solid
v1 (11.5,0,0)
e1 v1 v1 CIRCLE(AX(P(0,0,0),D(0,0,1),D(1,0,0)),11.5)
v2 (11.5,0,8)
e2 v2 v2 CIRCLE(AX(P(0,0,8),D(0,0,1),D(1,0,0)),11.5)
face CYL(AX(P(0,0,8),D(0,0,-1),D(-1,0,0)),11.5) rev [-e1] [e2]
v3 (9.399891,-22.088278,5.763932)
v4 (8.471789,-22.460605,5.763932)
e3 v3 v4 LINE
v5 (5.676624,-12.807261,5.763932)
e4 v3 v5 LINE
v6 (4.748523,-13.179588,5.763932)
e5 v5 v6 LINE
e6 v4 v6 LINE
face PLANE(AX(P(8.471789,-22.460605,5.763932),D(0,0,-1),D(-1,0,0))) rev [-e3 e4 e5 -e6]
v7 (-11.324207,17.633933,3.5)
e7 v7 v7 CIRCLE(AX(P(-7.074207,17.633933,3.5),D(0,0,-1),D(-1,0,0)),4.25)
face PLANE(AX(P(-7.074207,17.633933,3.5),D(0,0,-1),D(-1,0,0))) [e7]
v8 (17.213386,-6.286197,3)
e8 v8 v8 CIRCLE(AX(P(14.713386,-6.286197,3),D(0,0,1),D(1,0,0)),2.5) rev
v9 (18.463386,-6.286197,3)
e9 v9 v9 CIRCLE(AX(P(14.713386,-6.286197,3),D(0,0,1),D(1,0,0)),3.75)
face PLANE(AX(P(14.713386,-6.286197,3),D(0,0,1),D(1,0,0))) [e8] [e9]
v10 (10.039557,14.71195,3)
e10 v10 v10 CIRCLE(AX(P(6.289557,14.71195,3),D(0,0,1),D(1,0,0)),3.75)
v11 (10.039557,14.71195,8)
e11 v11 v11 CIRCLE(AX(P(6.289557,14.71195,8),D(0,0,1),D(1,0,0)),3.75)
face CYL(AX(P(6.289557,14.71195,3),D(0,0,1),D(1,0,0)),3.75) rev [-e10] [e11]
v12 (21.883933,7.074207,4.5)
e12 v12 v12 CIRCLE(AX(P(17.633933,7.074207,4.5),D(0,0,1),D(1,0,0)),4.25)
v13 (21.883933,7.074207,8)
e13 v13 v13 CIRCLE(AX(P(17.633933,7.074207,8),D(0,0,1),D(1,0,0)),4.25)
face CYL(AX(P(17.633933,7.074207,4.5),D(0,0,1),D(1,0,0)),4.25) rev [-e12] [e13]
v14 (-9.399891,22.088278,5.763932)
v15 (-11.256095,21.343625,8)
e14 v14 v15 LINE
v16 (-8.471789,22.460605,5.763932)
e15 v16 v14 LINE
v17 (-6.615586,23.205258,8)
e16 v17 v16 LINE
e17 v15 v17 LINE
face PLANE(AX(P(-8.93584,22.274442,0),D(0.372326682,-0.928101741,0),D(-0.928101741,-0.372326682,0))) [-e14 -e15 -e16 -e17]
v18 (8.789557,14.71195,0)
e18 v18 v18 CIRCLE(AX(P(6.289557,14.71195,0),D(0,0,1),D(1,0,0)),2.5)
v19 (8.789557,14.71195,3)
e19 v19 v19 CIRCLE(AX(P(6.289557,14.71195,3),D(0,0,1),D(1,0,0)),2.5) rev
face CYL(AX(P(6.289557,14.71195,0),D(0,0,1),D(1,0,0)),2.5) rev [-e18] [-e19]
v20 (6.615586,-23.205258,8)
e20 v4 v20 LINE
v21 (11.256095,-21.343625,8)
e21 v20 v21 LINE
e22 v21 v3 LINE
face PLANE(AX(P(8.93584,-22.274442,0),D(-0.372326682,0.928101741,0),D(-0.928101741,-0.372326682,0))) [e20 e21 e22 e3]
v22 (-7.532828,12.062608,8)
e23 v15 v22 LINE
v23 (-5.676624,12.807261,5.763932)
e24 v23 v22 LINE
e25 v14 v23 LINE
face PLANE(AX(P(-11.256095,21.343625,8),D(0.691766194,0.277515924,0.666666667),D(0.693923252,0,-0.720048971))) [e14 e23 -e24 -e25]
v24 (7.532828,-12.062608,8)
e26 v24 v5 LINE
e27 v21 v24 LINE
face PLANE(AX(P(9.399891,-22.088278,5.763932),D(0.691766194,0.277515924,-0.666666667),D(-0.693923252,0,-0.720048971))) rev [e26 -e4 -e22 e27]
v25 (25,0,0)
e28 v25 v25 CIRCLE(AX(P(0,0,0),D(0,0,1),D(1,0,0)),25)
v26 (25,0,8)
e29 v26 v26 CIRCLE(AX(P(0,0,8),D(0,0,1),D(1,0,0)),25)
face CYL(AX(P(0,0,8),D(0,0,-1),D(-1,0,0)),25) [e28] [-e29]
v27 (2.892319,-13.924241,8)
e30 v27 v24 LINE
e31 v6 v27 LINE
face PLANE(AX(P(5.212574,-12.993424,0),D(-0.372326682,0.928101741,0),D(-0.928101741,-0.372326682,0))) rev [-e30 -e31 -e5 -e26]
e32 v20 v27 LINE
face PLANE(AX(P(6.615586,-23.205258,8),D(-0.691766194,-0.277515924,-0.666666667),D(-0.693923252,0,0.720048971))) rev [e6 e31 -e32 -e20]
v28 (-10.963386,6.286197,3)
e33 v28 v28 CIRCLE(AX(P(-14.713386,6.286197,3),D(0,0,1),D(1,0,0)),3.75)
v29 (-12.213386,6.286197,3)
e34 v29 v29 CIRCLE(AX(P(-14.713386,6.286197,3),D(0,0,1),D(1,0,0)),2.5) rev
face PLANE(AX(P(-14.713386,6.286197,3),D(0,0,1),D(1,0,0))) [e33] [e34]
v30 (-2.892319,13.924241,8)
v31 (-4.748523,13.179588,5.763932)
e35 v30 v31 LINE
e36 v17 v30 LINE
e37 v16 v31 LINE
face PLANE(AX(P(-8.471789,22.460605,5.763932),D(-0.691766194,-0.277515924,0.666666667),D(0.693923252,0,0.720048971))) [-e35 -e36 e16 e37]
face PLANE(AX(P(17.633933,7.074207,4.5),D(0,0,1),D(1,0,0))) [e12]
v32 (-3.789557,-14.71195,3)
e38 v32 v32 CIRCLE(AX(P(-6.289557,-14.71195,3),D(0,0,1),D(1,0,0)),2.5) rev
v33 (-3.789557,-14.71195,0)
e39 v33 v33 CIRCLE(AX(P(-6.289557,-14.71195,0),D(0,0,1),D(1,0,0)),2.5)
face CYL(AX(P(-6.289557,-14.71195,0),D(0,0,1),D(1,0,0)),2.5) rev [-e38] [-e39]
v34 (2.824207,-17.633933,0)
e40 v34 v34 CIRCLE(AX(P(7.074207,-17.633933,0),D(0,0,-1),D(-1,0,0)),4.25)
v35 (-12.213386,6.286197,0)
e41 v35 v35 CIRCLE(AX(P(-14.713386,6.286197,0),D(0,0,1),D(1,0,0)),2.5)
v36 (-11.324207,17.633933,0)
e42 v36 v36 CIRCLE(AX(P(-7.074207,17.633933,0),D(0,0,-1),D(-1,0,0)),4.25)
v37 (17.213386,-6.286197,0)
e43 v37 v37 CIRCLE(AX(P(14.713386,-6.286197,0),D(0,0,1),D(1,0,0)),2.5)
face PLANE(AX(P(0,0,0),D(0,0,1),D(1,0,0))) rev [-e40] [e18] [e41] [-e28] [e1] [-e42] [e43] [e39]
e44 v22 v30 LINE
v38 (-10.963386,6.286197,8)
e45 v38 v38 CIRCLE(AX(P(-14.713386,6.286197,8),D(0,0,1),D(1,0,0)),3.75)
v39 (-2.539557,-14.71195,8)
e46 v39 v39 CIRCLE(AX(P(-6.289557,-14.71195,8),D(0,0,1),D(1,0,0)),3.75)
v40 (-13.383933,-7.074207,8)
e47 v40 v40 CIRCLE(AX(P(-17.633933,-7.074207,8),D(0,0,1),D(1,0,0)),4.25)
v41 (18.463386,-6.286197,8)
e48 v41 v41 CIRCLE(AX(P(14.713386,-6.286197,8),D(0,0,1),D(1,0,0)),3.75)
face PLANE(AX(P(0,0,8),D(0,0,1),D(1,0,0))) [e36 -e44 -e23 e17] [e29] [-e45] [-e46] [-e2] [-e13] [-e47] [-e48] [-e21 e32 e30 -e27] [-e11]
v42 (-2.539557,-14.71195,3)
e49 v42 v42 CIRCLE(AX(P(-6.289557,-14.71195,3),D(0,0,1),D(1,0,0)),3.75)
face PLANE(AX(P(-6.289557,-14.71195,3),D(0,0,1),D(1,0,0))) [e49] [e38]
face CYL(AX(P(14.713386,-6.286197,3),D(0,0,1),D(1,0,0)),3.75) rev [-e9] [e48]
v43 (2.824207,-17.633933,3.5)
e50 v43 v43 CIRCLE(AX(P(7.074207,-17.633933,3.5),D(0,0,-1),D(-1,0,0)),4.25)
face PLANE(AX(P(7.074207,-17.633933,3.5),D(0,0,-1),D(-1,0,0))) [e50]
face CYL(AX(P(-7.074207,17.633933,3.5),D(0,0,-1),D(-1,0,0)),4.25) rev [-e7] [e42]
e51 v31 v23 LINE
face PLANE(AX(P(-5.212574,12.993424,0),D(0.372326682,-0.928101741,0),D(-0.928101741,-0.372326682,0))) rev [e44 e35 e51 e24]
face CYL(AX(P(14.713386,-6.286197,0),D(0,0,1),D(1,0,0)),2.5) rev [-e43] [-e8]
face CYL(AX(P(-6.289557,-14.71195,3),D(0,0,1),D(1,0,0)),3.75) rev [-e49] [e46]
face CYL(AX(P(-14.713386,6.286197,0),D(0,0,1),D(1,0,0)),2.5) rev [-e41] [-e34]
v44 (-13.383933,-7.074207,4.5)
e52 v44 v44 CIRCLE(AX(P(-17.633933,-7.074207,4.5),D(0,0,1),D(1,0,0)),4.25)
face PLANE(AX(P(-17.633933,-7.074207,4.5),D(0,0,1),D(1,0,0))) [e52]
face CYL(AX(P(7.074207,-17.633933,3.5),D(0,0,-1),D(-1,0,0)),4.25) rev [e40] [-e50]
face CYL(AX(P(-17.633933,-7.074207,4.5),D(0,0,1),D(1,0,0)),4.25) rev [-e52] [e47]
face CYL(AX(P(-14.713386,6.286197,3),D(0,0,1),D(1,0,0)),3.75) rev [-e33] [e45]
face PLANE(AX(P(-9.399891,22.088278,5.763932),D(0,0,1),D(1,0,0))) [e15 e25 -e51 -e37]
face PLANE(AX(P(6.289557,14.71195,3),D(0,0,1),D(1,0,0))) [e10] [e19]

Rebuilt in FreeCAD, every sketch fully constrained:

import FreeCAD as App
import Part
import Sketcher

doc = App.newDocument("Part")
body = doc.addObject("PartDesign::Body", "Body")

# Sketch on XY plane
sketch1 = body.newObject("Sketcher::SketchObject", "Sketch")
sketch1.AttachmentSupport = (doc.getObject("XY_Plane"), [""])
sketch1.MapMode = "FlatFace"
sketch1.addGeometry(Part.Circle(App.Vector(0, 0, 0), App.Vector(0, 0, 1), 25), False)
sketch1.addGeometry(Part.Circle(App.Vector(0, 0, 0), App.Vector(0, 0, 1), 12), False)
sketch1.addConstraint(Sketcher.Constraint("Coincident", 0, 3, -1, 1))
sketch1.addConstraint(Sketcher.Constraint("Coincident", 1, 3, -1, 1))
sketch1.addConstraint(Sketcher.Constraint("Diameter", 0, 50.0))
sketch1.addConstraint(Sketcher.Constraint("Diameter", 1, 23.0))
pad1 = body.newObject("PartDesign::Pad", "Pad")
pad1.Profile = sketch1
pad1.Length = 8

# Sketch on XY plane
sketch2 = body.newObject("Sketcher::SketchObject", "Sketch001")
sketch2.AttachmentSupport = (doc.getObject("XY_Plane"), [""])
sketch2.MapMode = "FlatFace"
sketch2.AttachmentOffset = App.Placement(App.Vector(0, 0, 8), App.Rotation())
sketch2.addGeometry(Part.Circle(App.Vector(-14.7, 6.3, 0), App.Vector(0, 0, 1), 2.5), False)
sketch2.addGeometry(Part.Circle(App.Vector(6.3, 14.7, 0), App.Vector(0, 0, 1), 2.5), False)
sketch2.addGeometry(Part.Circle(App.Vector(14.7, -6.3, 0), App.Vector(0, 0, 1), 2.5), False)
sketch2.addGeometry(Part.Circle(App.Vector(-6.3, -14.7, 0), App.Vector(0, 0, 1), 2.5), False)
sketch2.addConstraint(Sketcher.Constraint("Equal", 0, 1))
sketch2.addConstraint(Sketcher.Constraint("Equal", 1, 2))
sketch2.addConstraint(Sketcher.Constraint("Equal", 2, 3))
sketch2.addConstraint(Sketcher.Constraint("Symmetric", 0, 3, 2, 3, -1, 1))
sketch2.addConstraint(Sketcher.Constraint("Symmetric", 1, 3, 3, 3, -1, 1))
sketch2.addConstraint(Sketcher.Constraint("Diameter", 0, 5.0))
sketch2.addConstraint(Sketcher.Constraint("DistanceY", 3, 3, 1, 3, 29.4239))
sketch2.addConstraint(Sketcher.Constraint("DistanceX", 1, 3, 2, 3, 8.423829))
sketch2.addConstraint(Sketcher.Constraint("DistanceX", 0, 3, 2, 3, 29.426772))
sketch2.addConstraint(Sketcher.Constraint("DistanceY", -1, 1, 0, 3, 6.286197))
pocket1 = body.newObject("PartDesign::Pocket", "Pocket")
pocket1.Profile = sketch2
pocket1.Type = "ThroughAll"

# Sketch on XY plane
sketch3 = body.newObject("Sketcher::SketchObject", "Sketch002")
sketch3.AttachmentSupport = (doc.getObject("XY_Plane"), [""])
sketch3.MapMode = "FlatFace"
sketch3.AttachmentOffset = App.Placement(App.Vector(0, 0, 8), App.Rotation())
sketch3.addGeometry(Part.Circle(App.Vector(-6.3, -14.7, 0), App.Vector(0, 0, 1), 3.8), False)
sketch3.addGeometry(Part.Circle(App.Vector(14.7, -6.3, 0), App.Vector(0, 0, 1), 3.8), False)
sketch3.addGeometry(Part.Circle(App.Vector(6.3, 14.7, 0), App.Vector(0, 0, 1), 3.8), False)
sketch3.addGeometry(Part.Circle(App.Vector(-14.7, 6.3, 0), App.Vector(0, 0, 1), 3.8), False)
sketch3.addConstraint(Sketcher.Constraint("Equal", 0, 1))
sketch3.addConstraint(Sketcher.Constraint("Equal", 1, 2))
sketch3.addConstraint(Sketcher.Constraint("Equal", 2, 3))
sketch3.addConstraint(Sketcher.Constraint("Symmetric", 0, 3, 2, 3, -1, 1))
sketch3.addConstraint(Sketcher.Constraint("Symmetric", 1, 3, 3, 3, -1, 1))
sketch3.addConstraint(Sketcher.Constraint("Diameter", 0, 7.5))
sketch3.addConstraint(Sketcher.Constraint("DistanceY", 0, 3, 2, 3, 29.4239))
sketch3.addConstraint(Sketcher.Constraint("DistanceX", 2, 3, 1, 3, 8.423829))
sketch3.addConstraint(Sketcher.Constraint("DistanceX", 3, 3, 1, 3, 29.426772))
sketch3.addConstraint(Sketcher.Constraint("DistanceY", 1, 3, -1, 1, 6.286197))
pocket2 = body.newObject("PartDesign::Pocket", "Pocket001")
pocket2.Profile = sketch3
pocket2.Length = 5

# Sketch on an angled plane
sketch4 = body.newObject("Sketcher::SketchObject", "Sketch003")
sketch4.Placement = App.Placement(App.Vector(5.212574, -12.993424, 0), App.Rotation(App.Vector(-0.928101741, -0.372326682, 0), App.Vector(0, 0, 1), App.Vector(-0.372326682, 0.928101741, 0), "ZXY"))
sketch4.addGeometry(Part.LineSegment(App.Vector(2.5, 8, 0), App.Vector(-2.5, 8, 0)), False)
sketch4.addGeometry(Part.LineSegment(App.Vector(-2.5, 8, 0), App.Vector(-0.5, 5.8, 0)), False)
sketch4.addGeometry(Part.LineSegment(App.Vector(-0.5, 5.8, 0), App.Vector(0.5, 5.8, 0)), False)
sketch4.addGeometry(Part.LineSegment(App.Vector(0.5, 5.8, 0), App.Vector(2.5, 8, 0)), False)
sketch4.addConstraint(Sketcher.Constraint("Coincident", 0, 2, 1, 1))
sketch4.addConstraint(Sketcher.Constraint("Coincident", 1, 2, 2, 1))
sketch4.addConstraint(Sketcher.Constraint("Coincident", 2, 2, 3, 1))
sketch4.addConstraint(Sketcher.Constraint("Coincident", 3, 2, 0, 1))
sketch4.addConstraint(Sketcher.Constraint("Horizontal", 0))
sketch4.addConstraint(Sketcher.Constraint("Horizontal", 2))
sketch4.addConstraint(Sketcher.Constraint("Equal", 1, 3))
sketch4.addConstraint(Sketcher.Constraint("DistanceX", 0, 2, 0, 1, 5.0))
sketch4.addConstraint(Sketcher.Constraint("DistanceX", 2, 1, 2, 2, 1.0))
sketch4.addConstraint(Sketcher.Constraint("Distance", 1, 3.0))
sketch4.addConstraint(Sketcher.Constraint("DistanceY", -1, 1, 0, 2, 8.0))
sketch4.addConstraint(Sketcher.Constraint("DistanceX", 0, 2, -1, 1, 2.5))
pocket3 = body.newObject("PartDesign::Pocket", "Pocket002")
pocket3.Profile = sketch4
pocket3.Length = 10

# Sketch on XY plane
sketch5 = body.newObject("Sketcher::SketchObject", "Sketch004")
sketch5.AttachmentSupport = (doc.getObject("XY_Plane"), [""])
sketch5.MapMode = "FlatFace"
sketch5.addGeometry(Part.Circle(App.Vector(-7.1, 17.6, 0), App.Vector(0, 0, 1), 4.2), False)
sketch5.addGeometry(Part.Circle(App.Vector(7.1, -17.6, 0), App.Vector(0, 0, 1), 4.2), False)
sketch5.addConstraint(Sketcher.Constraint("Equal", 0, 1))
sketch5.addConstraint(Sketcher.Constraint("Symmetric", 0, 3, 1, 3, -1, 1))
sketch5.addConstraint(Sketcher.Constraint("Diameter", 0, 8.5))
sketch5.addConstraint(Sketcher.Constraint("DistanceX", 0, 3, -1, 1, 7.074207))
sketch5.addConstraint(Sketcher.Constraint("DistanceY", -1, 1, 0, 3, 17.633933))
pocket4 = body.newObject("PartDesign::Pocket", "Pocket003")
pocket4.Profile = sketch5
pocket4.Length = 3.5
pocket4.Reversed = True

# Sketch on XY plane
sketch6 = body.newObject("Sketcher::SketchObject", "Sketch005")
sketch6.AttachmentSupport = (doc.getObject("XY_Plane"), [""])
sketch6.MapMode = "FlatFace"
sketch6.AttachmentOffset = App.Placement(App.Vector(0, 0, 8), App.Rotation())
sketch6.addGeometry(Part.Circle(App.Vector(17.6, 7.1, 0), App.Vector(0, 0, 1), 4.2), False)
sketch6.addGeometry(Part.Circle(App.Vector(-17.6, -7.1, 0), App.Vector(0, 0, 1), 4.2), False)
sketch6.addConstraint(Sketcher.Constraint("Equal", 0, 1))
sketch6.addConstraint(Sketcher.Constraint("Symmetric", 0, 3, 1, 3, -1, 1))
sketch6.addConstraint(Sketcher.Constraint("Diameter", 0, 8.5))
sketch6.addConstraint(Sketcher.Constraint("DistanceX", -1, 1, 0, 3, 17.633933))
sketch6.addConstraint(Sketcher.Constraint("DistanceY", -1, 1, 0, 3, 7.074207))
pocket5 = body.newObject("PartDesign::Pocket", "Pocket004")
pocket5.Profile = sketch6
pocket5.Length = 3.5
doc.recompute()

datumplane = body.newObject("PartDesign::Plane", "DatumPlane")
datumplane.Placement = App.Placement(App.Vector(0, 0, 0), App.Rotation(App.Vector(0.928101741, 0.372326682, 0), App.Vector(0, 0, -1), App.Vector(-0.372326682, 0.928101741, 0), "ZXY"))
mirrored = body.newObject("PartDesign::Mirrored", "Mirrored")
mirrored.Originals = [pocket3]
mirrored.MirrorPlane = (datumplane, [""])
body.Tip = mirrored

doc.recompute()
